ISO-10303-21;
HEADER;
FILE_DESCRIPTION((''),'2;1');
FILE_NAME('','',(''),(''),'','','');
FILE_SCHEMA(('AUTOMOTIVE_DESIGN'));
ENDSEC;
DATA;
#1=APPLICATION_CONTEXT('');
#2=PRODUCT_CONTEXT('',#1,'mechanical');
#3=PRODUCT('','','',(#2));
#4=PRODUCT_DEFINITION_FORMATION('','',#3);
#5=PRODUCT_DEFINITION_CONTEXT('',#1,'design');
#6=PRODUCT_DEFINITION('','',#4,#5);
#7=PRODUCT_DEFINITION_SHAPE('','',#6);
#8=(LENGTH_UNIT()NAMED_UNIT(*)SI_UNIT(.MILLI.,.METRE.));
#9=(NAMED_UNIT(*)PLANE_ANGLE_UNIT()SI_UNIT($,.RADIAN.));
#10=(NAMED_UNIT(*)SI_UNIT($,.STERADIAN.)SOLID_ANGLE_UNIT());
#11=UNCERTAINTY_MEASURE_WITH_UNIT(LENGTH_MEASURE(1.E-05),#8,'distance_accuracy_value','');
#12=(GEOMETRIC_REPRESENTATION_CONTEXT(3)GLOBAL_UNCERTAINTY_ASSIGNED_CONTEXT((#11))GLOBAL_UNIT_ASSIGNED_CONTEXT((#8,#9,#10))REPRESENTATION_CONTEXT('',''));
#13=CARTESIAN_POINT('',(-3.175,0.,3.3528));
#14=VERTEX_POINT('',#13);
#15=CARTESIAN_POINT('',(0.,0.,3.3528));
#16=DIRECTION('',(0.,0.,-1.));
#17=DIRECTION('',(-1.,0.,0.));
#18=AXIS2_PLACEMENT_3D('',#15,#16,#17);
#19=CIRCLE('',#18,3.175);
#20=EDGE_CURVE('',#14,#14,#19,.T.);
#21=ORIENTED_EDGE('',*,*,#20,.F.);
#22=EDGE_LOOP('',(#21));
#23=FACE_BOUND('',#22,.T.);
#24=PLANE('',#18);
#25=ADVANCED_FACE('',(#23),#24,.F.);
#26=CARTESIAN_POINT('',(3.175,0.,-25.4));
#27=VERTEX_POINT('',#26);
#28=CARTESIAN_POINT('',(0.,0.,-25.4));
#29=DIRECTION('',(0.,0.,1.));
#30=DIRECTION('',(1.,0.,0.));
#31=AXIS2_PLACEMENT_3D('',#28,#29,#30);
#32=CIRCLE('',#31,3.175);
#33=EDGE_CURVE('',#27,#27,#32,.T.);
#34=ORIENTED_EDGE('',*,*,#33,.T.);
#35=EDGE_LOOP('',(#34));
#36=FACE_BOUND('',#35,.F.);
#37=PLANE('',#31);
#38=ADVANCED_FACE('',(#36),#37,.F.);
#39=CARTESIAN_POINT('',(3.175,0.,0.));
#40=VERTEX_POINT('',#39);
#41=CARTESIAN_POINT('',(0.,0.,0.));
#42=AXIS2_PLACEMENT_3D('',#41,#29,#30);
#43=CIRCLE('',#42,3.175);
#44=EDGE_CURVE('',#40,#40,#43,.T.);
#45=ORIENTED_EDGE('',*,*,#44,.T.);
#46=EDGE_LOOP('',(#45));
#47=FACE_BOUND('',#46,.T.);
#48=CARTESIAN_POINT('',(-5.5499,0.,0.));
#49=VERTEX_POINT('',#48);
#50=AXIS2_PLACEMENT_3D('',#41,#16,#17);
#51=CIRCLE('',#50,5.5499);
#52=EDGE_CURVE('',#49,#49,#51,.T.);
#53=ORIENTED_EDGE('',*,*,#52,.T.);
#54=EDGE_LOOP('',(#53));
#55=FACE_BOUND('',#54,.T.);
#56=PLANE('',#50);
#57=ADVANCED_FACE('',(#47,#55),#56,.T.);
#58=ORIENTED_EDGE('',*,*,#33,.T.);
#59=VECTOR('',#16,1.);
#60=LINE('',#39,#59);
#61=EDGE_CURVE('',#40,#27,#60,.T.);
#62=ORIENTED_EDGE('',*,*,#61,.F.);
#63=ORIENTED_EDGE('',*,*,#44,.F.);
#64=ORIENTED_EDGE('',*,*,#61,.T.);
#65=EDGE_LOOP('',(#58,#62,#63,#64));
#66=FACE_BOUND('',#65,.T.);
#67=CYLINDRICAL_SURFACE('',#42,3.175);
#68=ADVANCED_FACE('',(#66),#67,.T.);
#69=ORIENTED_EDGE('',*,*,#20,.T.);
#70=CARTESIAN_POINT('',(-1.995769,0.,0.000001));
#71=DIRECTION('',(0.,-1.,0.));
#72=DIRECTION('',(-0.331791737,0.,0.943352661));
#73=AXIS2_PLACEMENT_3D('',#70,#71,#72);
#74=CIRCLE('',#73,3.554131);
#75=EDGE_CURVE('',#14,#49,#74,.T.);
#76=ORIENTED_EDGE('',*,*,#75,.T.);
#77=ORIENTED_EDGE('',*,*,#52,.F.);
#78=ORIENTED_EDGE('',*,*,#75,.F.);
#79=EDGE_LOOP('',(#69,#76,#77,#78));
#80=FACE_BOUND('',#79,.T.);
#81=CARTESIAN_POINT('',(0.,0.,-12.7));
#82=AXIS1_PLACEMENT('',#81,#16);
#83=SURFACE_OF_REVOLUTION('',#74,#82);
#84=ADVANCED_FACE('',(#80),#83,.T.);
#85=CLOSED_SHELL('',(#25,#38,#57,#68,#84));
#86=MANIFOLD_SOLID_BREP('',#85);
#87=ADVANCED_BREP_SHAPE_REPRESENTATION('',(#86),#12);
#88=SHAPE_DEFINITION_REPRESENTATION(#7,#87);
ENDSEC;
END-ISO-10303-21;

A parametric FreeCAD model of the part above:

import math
import FreeCAD as App
import Part
import Sketcher
Q = App.Units.Quantity

doc = App.newDocument("Part")
body = doc.addObject("PartDesign::Body", "Body")

# Sketch on XY plane
sketch1 = body.newObject("Sketcher::SketchObject", "Sketch")
sketch1.AttachmentSupport = (doc.getObject("XY_Plane"), [""])
sketch1.MapMode = "FlatFace"
sketch1.addGeometry(Part.Circle(App.Vector(0, 0, 0), App.Vector(0, 0, 1), 3.2), False)
sketch1.addConstraint(Sketcher.Constraint("Coincident", 0, 3, -1, 1))
sketch1.addConstraint(Sketcher.Constraint("Diameter", 0, Q("0.25 in")))
pad1 = body.newObject("PartDesign::Pad", "Pad")
pad1.Profile = sketch1
pad1.Length = Q("1 in")
pad1.Reversed = True

# Sketch on XZ plane
sketch2 = body.newObject("Sketcher::SketchObject", "Sketch001")
sketch2.AttachmentSupport = (doc.getObject("XZ_Plane"), [""])
sketch2.MapMode = "FlatFace"
sketch2.addGeometry(Part.LineSegment(App.Vector(-5.5, 0, 0), App.Vector(0, 0, 0)), False)
sketch2.addGeometry(Part.LineSegment(App.Vector(0, 0, 0), App.Vector(0, 3.4, 0)), False)
sketch2.addGeometry(Part.LineSegment(App.Vector(0, 3.4, 0), App.Vector(-3.2, 3.4, 0)), False)
sketch2.addGeometry(Part.ArcOfCircle(Part.Circle(App.Vector(-2, 0, 0), App.Vector(0, 0, 1), 3.6), math.radians(109), math.radians(180)), False)
sketch2.addConstraint(Sketcher.Constraint("Coincident", 0, 2, 1, 1))
sketch2.addConstraint(Sketcher.Constraint("Coincident", 1, 2, 2, 1))
sketch2.addConstraint(Sketcher.Constraint("Coincident", 2, 2, 3, 1))
sketch2.addConstraint(Sketcher.Constraint("Coincident", 3, 2, 0, 1))
sketch2.addConstraint(Sketcher.Constraint("Horizontal", 0))
sketch2.addConstraint(Sketcher.Constraint("Vertical", 1))
sketch2.addConstraint(Sketcher.Constraint("Horizontal", 2))
sketch2.addConstraint(Sketcher.Constraint("Coincident", 0, 2, -1, 1))
sketch2.addConstraint(Sketcher.Constraint("PointOnObject", 3, 3, -1))
sketch2.addConstraint(Sketcher.Constraint("DistanceX", 2, 2, 2, 1, Q("0.125 in")))
sketch2.addConstraint(Sketcher.Constraint("DistanceY", 1, 1, 1, 2, Q("0.132 in")))
sketch2.addConstraint(Sketcher.Constraint("DistanceX", 0, 1, 0, 2, Q("0.2185 in")))
revolution = body.newObject("PartDesign::Revolution", "Revolution")
revolution.Profile = sketch2
revolution.ReferenceAxis = (sketch2, ["V_Axis"])
revolution.Angle = 360

doc.recompute()
